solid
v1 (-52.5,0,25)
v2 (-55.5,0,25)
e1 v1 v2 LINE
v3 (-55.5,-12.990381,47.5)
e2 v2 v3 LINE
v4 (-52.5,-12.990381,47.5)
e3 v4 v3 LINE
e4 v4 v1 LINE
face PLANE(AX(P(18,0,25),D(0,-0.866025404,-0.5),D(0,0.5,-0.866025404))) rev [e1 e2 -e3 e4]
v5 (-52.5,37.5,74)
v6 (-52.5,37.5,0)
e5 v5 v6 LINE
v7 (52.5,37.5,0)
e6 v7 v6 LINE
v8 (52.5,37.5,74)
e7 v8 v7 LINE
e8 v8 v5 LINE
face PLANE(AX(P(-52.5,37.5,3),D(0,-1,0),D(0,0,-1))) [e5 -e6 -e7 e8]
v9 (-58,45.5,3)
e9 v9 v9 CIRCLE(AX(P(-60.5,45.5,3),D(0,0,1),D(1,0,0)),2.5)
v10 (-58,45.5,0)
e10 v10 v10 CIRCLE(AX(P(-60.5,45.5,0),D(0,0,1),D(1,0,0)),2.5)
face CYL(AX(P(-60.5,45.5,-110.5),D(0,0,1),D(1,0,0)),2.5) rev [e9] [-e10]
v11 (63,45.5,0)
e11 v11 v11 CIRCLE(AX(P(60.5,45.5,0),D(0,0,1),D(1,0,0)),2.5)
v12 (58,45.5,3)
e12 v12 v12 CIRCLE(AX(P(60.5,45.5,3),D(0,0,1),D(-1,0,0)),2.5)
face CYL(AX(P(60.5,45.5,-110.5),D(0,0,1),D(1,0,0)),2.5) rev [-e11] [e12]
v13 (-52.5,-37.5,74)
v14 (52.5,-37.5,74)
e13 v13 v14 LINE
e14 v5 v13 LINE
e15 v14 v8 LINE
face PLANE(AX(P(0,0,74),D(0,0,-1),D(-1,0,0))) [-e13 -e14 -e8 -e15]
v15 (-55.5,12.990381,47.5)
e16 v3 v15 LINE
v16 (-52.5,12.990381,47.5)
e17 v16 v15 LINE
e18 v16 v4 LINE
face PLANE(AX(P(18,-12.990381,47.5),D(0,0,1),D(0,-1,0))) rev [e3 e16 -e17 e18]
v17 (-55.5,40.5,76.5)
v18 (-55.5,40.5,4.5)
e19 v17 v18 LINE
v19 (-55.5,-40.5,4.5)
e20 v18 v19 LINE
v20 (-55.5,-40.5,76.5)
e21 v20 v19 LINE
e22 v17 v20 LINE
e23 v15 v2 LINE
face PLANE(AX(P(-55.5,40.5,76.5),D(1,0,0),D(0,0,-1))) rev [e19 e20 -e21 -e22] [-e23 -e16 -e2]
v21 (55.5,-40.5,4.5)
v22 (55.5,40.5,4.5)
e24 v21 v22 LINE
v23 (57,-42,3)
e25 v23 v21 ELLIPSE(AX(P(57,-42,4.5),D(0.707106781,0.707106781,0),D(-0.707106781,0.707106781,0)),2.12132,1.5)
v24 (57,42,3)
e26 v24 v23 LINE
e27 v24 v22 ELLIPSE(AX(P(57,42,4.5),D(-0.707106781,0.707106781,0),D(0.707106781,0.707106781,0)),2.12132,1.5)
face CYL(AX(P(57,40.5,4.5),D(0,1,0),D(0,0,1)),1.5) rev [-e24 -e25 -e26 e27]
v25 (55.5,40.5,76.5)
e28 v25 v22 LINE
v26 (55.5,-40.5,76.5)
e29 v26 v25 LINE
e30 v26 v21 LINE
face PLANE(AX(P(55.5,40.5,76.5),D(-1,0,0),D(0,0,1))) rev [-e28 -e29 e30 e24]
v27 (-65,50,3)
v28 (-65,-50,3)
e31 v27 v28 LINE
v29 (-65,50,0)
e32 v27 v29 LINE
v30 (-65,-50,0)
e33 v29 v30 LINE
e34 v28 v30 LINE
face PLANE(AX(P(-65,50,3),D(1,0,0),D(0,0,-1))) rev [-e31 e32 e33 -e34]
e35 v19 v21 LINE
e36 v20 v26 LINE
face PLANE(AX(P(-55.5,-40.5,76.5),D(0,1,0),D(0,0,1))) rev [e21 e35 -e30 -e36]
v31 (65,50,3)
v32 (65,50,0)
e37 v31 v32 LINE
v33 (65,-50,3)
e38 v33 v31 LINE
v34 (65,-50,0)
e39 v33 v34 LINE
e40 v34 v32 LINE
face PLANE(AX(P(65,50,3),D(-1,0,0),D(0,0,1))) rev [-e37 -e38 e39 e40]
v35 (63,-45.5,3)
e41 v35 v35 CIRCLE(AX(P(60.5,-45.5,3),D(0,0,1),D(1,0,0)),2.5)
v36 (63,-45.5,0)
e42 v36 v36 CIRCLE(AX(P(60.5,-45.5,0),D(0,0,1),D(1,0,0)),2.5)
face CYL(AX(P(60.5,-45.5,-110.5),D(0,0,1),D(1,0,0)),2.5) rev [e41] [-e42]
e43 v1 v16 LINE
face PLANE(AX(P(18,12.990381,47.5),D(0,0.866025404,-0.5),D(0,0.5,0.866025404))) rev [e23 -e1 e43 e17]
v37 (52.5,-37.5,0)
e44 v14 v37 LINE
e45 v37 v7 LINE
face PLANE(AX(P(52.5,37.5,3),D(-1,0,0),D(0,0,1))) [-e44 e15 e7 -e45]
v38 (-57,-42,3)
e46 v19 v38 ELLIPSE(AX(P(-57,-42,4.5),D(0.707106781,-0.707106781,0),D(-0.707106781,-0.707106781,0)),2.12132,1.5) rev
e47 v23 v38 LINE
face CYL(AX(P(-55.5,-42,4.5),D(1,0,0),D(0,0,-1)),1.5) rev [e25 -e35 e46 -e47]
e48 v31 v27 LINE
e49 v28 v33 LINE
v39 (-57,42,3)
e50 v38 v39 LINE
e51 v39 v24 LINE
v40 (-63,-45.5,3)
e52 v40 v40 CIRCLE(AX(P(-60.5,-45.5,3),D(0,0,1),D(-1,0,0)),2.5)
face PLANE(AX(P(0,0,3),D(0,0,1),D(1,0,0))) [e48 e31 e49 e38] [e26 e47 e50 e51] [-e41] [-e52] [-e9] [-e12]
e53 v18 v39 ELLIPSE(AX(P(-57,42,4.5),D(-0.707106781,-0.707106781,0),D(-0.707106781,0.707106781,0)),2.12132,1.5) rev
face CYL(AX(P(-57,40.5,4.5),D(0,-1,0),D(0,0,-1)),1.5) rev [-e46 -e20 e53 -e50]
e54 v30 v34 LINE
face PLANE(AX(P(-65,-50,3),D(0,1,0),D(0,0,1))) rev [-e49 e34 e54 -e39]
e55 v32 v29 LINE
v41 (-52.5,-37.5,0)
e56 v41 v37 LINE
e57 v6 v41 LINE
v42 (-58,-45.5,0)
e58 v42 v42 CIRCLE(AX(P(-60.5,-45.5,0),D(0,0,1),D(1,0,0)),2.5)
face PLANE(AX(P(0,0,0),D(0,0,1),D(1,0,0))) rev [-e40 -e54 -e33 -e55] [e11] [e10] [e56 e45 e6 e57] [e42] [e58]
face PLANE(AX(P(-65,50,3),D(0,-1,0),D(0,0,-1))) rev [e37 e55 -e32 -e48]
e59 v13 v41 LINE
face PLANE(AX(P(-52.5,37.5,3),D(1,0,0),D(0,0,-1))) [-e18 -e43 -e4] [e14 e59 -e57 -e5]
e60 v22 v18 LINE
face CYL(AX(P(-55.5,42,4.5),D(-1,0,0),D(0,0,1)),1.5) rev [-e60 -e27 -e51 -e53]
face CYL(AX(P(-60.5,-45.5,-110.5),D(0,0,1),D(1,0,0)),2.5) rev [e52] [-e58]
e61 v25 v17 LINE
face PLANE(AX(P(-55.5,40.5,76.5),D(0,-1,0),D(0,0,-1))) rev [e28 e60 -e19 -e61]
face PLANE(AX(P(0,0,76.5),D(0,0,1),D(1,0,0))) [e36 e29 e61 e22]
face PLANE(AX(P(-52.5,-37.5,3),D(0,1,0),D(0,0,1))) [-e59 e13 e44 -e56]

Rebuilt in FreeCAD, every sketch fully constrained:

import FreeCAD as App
import Part
import Sketcher
from FreeCAD import Vector
Q = App.Units.Quantity


def edges_at(feature, points):
    """Names of the edges that pass closest to the given points."""
    edges = feature.Shape.Edges
    near = lambda p: min(range(len(edges)), key=lambda i: edges[i].distToShape(Part.Vertex(*p))[0])
    return sorted({f"Edge{near(p) + 1}" for p in points})

doc = App.newDocument("Part")
params = doc.addObject("Spreadsheet::Sheet", "Params")
for row, (alias, value) in enumerate([
    ("sketch1_width", "130 mm"),
    ("sketch1_width2", "105 mm"),
    ("sketch1_height", "100 mm"),
    ("sketch1_height2", "75 mm"),
    ("pad1_length", "3 mm"),
    ("sketch2_width", "111 mm"),
    ("sketch2_width2", "105 mm"),
    ("sketch2_height", "81 mm"),
    ("sketch2_height2", "75 mm"),
    ("pad2_length", "73.5 mm"),
    ("fillet_radius", "1.5 mm"),
    ("sketch3_diameter", "5 mm"),
    ("pocket1_length", "113.5 mm"),
    ("pocket2_length", "73.5 mm"),
    ("sketch5_width", "105 mm"),
    ("sketch5_height", "75 mm"),
    ("pad3_length", "2.5 mm"),
], start=1):
    params.set(f"A{row}", alias)
    params.set(f"B{row}", "=" + value)
    params.setAlias(f"B{row}", alias)

body = doc.addObject("PartDesign::Body", "Body")

sketch1 = body.newObject("Sketcher::SketchObject", "Sketch")
sketch1.AttachmentSupport = (doc.getObject("XY_Plane"), [""])
sketch1.MapMode = "FlatFace"
sketch1.addGeometry(Part.LineSegment(Vector(-65, 50, 0), Vector(-65, -50, 0)), False)
sketch1.addGeometry(Part.LineSegment(Vector(-65, -50, 0), Vector(65, -50, 0)), False)
sketch1.addGeometry(Part.LineSegment(Vector(65, -50, 0), Vector(65, 50, 0)), False)
sketch1.addGeometry(Part.LineSegment(Vector(65, 50, 0), Vector(-65, 50, 0)), False)
sketch1.addGeometry(Part.LineSegment(Vector(52, -38, 0), Vector(-52, -38, 0)), False)
sketch1.addGeometry(Part.LineSegment(Vector(-52, -38, 0), Vector(-52, 38, 0)), False)
sketch1.addGeometry(Part.LineSegment(Vector(-52, 38, 0), Vector(52, 38, 0)), False)
sketch1.addGeometry(Part.LineSegment(Vector(52, 38, 0), Vector(52, -38, 0)), False)
sketch1.addConstraint(Sketcher.Constraint("Coincident", 0, 2, 1, 1))
sketch1.addConstraint(Sketcher.Constraint("Coincident", 1, 2, 2, 1))
sketch1.addConstraint(Sketcher.Constraint("Coincident", 2, 2, 3, 1))
sketch1.addConstraint(Sketcher.Constraint("Coincident", 3, 2, 0, 1))
sketch1.addConstraint(Sketcher.Constraint("Coincident", 4, 2, 5, 1))
sketch1.addConstraint(Sketcher.Constraint("Coincident", 5, 2, 6, 1))
sketch1.addConstraint(Sketcher.Constraint("Coincident", 6, 2, 7, 1))
sketch1.addConstraint(Sketcher.Constraint("Coincident", 7, 2, 4, 1))
sketch1.addConstraint(Sketcher.Constraint("Vertical", 0))
sketch1.addConstraint(Sketcher.Constraint("Horizontal", 1))
sketch1.addConstraint(Sketcher.Constraint("Vertical", 2))
sketch1.addConstraint(Sketcher.Constraint("Horizontal", 3))
sketch1.addConstraint(Sketcher.Constraint("Horizontal", 4))
sketch1.addConstraint(Sketcher.Constraint("Vertical", 5))
sketch1.addConstraint(Sketcher.Constraint("Horizontal", 6))
sketch1.addConstraint(Sketcher.Constraint("Vertical", 7))
sketch1.addConstraint(Sketcher.Constraint("Symmetric", 0, 2, 2, 2, -1, 1))
sketch1.addConstraint(Sketcher.Constraint("Symmetric", 4, 2, 6, 2, -1, 1))
sketch1.addConstraint(Sketcher.Constraint("DistanceX", 1, 1, 1, 2, Q("130 mm")))
sketch1.addConstraint(Sketcher.Constraint("DistanceX", 4, 2, 4, 1, Q("105 mm")))
sketch1.addConstraint(Sketcher.Constraint("DistanceY", 0, 2, 0, 1, Q("100 mm")))
sketch1.addConstraint(Sketcher.Constraint("DistanceY", 5, 1, 5, 2, Q("75 mm")))
sketch1.setExpression("Constraints[18]", "Params.sketch1_width")
sketch1.setExpression("Constraints[19]", "Params.sketch1_width2")
sketch1.setExpression("Constraints[20]", "Params.sketch1_height")
sketch1.setExpression("Constraints[21]", "Params.sketch1_height2")
pad1 = body.newObject("PartDesign::Pad", "Pad")
pad1.Profile = sketch1
pad1.setExpression("Length", "Params.pad1_length")

sketch2 = body.newObject("Sketcher::SketchObject", "Sketch001")
sketch2.AttachmentSupport = (doc.getObject("XY_Plane"), [""])
sketch2.MapMode = "FlatFace"
sketch2.AttachmentOffset = App.Placement(Vector(0, 0, 3), App.Rotation())
sketch2.addGeometry(Part.LineSegment(Vector(-56, 40, 0), Vector(-56, -40, 0)), False)
sketch2.addGeometry(Part.LineSegment(Vector(-56, -40, 0), Vector(56, -40, 0)), False)
sketch2.addGeometry(Part.LineSegment(Vector(56, -40, 0), Vector(56, 40, 0)), False)
sketch2.addGeometry(Part.LineSegment(Vector(56, 40, 0), Vector(-56, 40, 0)), False)
sketch2.addGeometry(Part.LineSegment(Vector(52, -38, 0), Vector(-52, -38, 0)), False)
sketch2.addGeometry(Part.LineSegment(Vector(-52, -38, 0), Vector(-52, 38, 0)), False)
sketch2.addGeometry(Part.LineSegment(Vector(-52, 38, 0), Vector(52, 38, 0)), False)
sketch2.addGeometry(Part.LineSegment(Vector(52, 38, 0), Vector(52, -38, 0)), False)
sketch2.addConstraint(Sketcher.Constraint("Coincident", 0, 2, 1, 1))
sketch2.addConstraint(Sketcher.Constraint("Coincident", 1, 2, 2, 1))
sketch2.addConstraint(Sketcher.Constraint("Coincident", 2, 2, 3, 1))
sketch2.addConstraint(Sketcher.Constraint("Coincident", 3, 2, 0, 1))
sketch2.addConstraint(Sketcher.Constraint("Coincident", 4, 2, 5, 1))
sketch2.addConstraint(Sketcher.Constraint("Coincident", 5, 2, 6, 1))
sketch2.addConstraint(Sketcher.Constraint("Coincident", 6, 2, 7, 1))
sketch2.addConstraint(Sketcher.Constraint("Coincident", 7, 2, 4, 1))
sketch2.addConstraint(Sketcher.Constraint("Vertical", 0))
sketch2.addConstraint(Sketcher.Constraint("Horizontal", 1))
sketch2.addConstraint(Sketcher.Constraint("Vertical", 2))
sketch2.addConstraint(Sketcher.Constraint("Horizontal", 3))
sketch2.addConstraint(Sketcher.Constraint("Horizontal", 4))
sketch2.addConstraint(Sketcher.Constraint("Vertical", 5))
sketch2.addConstraint(Sketcher.Constraint("Horizontal", 6))
sketch2.addConstraint(Sketcher.Constraint("Vertical", 7))
sketch2.addConstraint(Sketcher.Constraint("Symmetric", 0, 2, 2, 2, -1, 1))
sketch2.addConstraint(Sketcher.Constraint("Symmetric", 4, 2, 6, 2, -1, 1))
sketch2.addConstraint(Sketcher.Constraint("DistanceX", 1, 1, 1, 2, Q("111 mm")))
sketch2.addConstraint(Sketcher.Constraint("DistanceX", 4, 2, 4, 1, Q("105 mm")))
sketch2.addConstraint(Sketcher.Constraint("DistanceY", 0, 2, 0, 1, Q("81 mm")))
sketch2.addConstraint(Sketcher.Constraint("DistanceY", 5, 1, 5, 2, Q("75 mm")))
sketch2.setExpression("Constraints[18]", "Params.sketch2_width")
sketch2.setExpression("Constraints[19]", "Params.sketch2_width2")
sketch2.setExpression("Constraints[20]", "Params.sketch2_height")
sketch2.setExpression("Constraints[21]", "Params.sketch2_height2")
pad2 = body.newObject("PartDesign::Pad", "Pad001")
pad2.Profile = sketch2
pad2.setExpression("Length", "Params.pad2_length")
doc.recompute()

fillet = body.newObject("PartDesign::Fillet", "Fillet")
fillet.Base = (pad2, edges_at(pad2, [
    (55.5, 0, 3),
    (0, 40.5, 3),
    (-55.5, 0, 3),
    (0, -40.5, 3),
]))
fillet.setExpression("Radius", "Params.fillet_radius")

sketch3 = body.newObject("Sketcher::SketchObject", "Sketch002")
sketch3.AttachmentSupport = (doc.getObject("XY_Plane"), [""])
sketch3.MapMode = "FlatFace"
sketch3.AttachmentOffset = App.Placement(Vector(0, 0, 3), App.Rotation())
sketch3.addGeometry(Part.Circle(Vector(-60.5, 45.5, 0), Vector(0, 0, 1), 2.5), False)
sketch3.addGeometry(Part.Circle(Vector(60.5, 45.5, 0), Vector(0, 0, 1), 2.5), False)
sketch3.addGeometry(Part.Circle(Vector(60.5, -45.5, 0), Vector(0, 0, 1), 2.5), False)
sketch3.addGeometry(Part.Circle(Vector(-60.5, -45.5, 0), Vector(0, 0, 1), 2.5), False)
sketch3.addConstraint(Sketcher.Constraint("Equal", 0, 1))
sketch3.addConstraint(Sketcher.Constraint("Equal", 1, 2))
sketch3.addConstraint(Sketcher.Constraint("Equal", 2, 3))
sketch3.addConstraint(Sketcher.Constraint("Symmetric", 0, 3, 2, 3, -1, 1))
sketch3.addConstraint(Sketcher.Constraint("Symmetric", 1, 3, 3, 3, -1, 1))
sketch3.addConstraint(Sketcher.Constraint("Symmetric", 0, 3, 1, 3, -2))
sketch3.addConstraint(Sketcher.Constraint("Diameter", 0, Q("5 mm")))
sketch3.addConstraint(Sketcher.Constraint("DistanceX", 0, 3, 1, 3, Q("121 mm")))
sketch3.addConstraint(Sketcher.Constraint("DistanceY", 2, 3, 1, 3, Q("91 mm")))
sketch3.setExpression("Constraints[6]", "Params.sketch3_diameter")
pocket1 = body.newObject("PartDesign::Pocket", "Pocket")
pocket1.Profile = sketch3
pocket1.setExpression("Length", "Params.pocket1_length")

sketch4 = body.newObject("Sketcher::SketchObject", "Sketch003")
sketch4.AttachmentSupport = (doc.getObject("YZ_Plane"), [""])
sketch4.MapMode = "FlatFace"
sketch4.AttachmentOffset = App.Placement(Vector(0, 0, -55.5), App.Rotation())
sketch4.addGeometry(Part.LineSegment(Vector(0, 25, 0), Vector(-13, 48, 0)), False)
sketch4.addGeometry(Part.LineSegment(Vector(-13, 48, 0), Vector(13, 48, 0)), False)
sketch4.addGeometry(Part.LineSegment(Vector(13, 48, 0), Vector(0, 25, 0)), False)
sketch4.addConstraint(Sketcher.Constraint("Coincident", 0, 2, 1, 1))
sketch4.addConstraint(Sketcher.Constraint("Coincident", 1, 2, 2, 1))
sketch4.addConstraint(Sketcher.Constraint("Coincident", 2, 2, 0, 1))
sketch4.addConstraint(Sketcher.Constraint("Horizontal", 1))
sketch4.addConstraint(Sketcher.Constraint("PointOnObject", 2, 2, -2))
sketch4.addConstraint(Sketcher.Constraint("Equal", 0, 2))
sketch4.addConstraint(Sketcher.Constraint("Angle", 0, Q("120 deg")))
sketch4.addConstraint(Sketcher.Constraint("DistanceY", -1, 1, 2, 2, Q("25 mm")))
sketch4.addConstraint(Sketcher.Constraint("DistanceY", -1, 1, 0, 2, Q("47.5 mm")))
pocket2 = body.newObject("PartDesign::Pocket", "Pocket001")
pocket2.Profile = sketch4
pocket2.setExpression("Length", "Params.pocket2_length")
pocket2.Reversed = True

sketch5 = body.newObject("Sketcher::SketchObject", "Sketch004")
sketch5.AttachmentSupport = (doc.getObject("XY_Plane"), [""])
sketch5.MapMode = "FlatFace"
sketch5.AttachmentOffset = App.Placement(Vector(0, 0, 76.5), App.Rotation())
sketch5.addGeometry(Part.LineSegment(Vector(-52, 38, 0), Vector(-52, -38, 0)), False)
sketch5.addGeometry(Part.LineSegment(Vector(-52, -38, 0), Vector(52, -38, 0)), False)
sketch5.addGeometry(Part.LineSegment(Vector(52, -38, 0), Vector(52, 38, 0)), False)
sketch5.addGeometry(Part.LineSegment(Vector(52, 38, 0), Vector(-52, 38, 0)), False)
sketch5.addConstraint(Sketcher.Constraint("Coincident", 0, 2, 1, 1))
sketch5.addConstraint(Sketcher.Constraint("Coincident", 1, 2, 2, 1))
sketch5.addConstraint(Sketcher.Constraint("Coincident", 2, 2, 3, 1))
sketch5.addConstraint(Sketcher.Constraint("Coincident", 3, 2, 0, 1))
sketch5.addConstraint(Sketcher.Constraint("Vertical", 0))
sketch5.addConstraint(Sketcher.Constraint("Horizontal", 1))
sketch5.addConstraint(Sketcher.Constraint("Vertical", 2))
sketch5.addConstraint(Sketcher.Constraint("Horizontal", 3))
sketch5.addConstraint(Sketcher.Constraint("Symmetric", 0, 2, 2, 2, -1, 1))
sketch5.addConstraint(Sketcher.Constraint("DistanceX", 1, 1, 1, 2, Q("105 mm")))
sketch5.addConstraint(Sketcher.Constraint("DistanceY", 0, 2, 0, 1, Q("75 mm")))
sketch5.setExpression("Constraints[9]", "Params.sketch5_width")
sketch5.setExpression("Constraints[10]", "Params.sketch5_height")
pad3 = body.newObject("PartDesign::Pad", "Pad002")
pad3.Profile = sketch5
pad3.setExpression("Length", "Params.pad3_length")
pad3.Reversed = True

doc.recompute()
